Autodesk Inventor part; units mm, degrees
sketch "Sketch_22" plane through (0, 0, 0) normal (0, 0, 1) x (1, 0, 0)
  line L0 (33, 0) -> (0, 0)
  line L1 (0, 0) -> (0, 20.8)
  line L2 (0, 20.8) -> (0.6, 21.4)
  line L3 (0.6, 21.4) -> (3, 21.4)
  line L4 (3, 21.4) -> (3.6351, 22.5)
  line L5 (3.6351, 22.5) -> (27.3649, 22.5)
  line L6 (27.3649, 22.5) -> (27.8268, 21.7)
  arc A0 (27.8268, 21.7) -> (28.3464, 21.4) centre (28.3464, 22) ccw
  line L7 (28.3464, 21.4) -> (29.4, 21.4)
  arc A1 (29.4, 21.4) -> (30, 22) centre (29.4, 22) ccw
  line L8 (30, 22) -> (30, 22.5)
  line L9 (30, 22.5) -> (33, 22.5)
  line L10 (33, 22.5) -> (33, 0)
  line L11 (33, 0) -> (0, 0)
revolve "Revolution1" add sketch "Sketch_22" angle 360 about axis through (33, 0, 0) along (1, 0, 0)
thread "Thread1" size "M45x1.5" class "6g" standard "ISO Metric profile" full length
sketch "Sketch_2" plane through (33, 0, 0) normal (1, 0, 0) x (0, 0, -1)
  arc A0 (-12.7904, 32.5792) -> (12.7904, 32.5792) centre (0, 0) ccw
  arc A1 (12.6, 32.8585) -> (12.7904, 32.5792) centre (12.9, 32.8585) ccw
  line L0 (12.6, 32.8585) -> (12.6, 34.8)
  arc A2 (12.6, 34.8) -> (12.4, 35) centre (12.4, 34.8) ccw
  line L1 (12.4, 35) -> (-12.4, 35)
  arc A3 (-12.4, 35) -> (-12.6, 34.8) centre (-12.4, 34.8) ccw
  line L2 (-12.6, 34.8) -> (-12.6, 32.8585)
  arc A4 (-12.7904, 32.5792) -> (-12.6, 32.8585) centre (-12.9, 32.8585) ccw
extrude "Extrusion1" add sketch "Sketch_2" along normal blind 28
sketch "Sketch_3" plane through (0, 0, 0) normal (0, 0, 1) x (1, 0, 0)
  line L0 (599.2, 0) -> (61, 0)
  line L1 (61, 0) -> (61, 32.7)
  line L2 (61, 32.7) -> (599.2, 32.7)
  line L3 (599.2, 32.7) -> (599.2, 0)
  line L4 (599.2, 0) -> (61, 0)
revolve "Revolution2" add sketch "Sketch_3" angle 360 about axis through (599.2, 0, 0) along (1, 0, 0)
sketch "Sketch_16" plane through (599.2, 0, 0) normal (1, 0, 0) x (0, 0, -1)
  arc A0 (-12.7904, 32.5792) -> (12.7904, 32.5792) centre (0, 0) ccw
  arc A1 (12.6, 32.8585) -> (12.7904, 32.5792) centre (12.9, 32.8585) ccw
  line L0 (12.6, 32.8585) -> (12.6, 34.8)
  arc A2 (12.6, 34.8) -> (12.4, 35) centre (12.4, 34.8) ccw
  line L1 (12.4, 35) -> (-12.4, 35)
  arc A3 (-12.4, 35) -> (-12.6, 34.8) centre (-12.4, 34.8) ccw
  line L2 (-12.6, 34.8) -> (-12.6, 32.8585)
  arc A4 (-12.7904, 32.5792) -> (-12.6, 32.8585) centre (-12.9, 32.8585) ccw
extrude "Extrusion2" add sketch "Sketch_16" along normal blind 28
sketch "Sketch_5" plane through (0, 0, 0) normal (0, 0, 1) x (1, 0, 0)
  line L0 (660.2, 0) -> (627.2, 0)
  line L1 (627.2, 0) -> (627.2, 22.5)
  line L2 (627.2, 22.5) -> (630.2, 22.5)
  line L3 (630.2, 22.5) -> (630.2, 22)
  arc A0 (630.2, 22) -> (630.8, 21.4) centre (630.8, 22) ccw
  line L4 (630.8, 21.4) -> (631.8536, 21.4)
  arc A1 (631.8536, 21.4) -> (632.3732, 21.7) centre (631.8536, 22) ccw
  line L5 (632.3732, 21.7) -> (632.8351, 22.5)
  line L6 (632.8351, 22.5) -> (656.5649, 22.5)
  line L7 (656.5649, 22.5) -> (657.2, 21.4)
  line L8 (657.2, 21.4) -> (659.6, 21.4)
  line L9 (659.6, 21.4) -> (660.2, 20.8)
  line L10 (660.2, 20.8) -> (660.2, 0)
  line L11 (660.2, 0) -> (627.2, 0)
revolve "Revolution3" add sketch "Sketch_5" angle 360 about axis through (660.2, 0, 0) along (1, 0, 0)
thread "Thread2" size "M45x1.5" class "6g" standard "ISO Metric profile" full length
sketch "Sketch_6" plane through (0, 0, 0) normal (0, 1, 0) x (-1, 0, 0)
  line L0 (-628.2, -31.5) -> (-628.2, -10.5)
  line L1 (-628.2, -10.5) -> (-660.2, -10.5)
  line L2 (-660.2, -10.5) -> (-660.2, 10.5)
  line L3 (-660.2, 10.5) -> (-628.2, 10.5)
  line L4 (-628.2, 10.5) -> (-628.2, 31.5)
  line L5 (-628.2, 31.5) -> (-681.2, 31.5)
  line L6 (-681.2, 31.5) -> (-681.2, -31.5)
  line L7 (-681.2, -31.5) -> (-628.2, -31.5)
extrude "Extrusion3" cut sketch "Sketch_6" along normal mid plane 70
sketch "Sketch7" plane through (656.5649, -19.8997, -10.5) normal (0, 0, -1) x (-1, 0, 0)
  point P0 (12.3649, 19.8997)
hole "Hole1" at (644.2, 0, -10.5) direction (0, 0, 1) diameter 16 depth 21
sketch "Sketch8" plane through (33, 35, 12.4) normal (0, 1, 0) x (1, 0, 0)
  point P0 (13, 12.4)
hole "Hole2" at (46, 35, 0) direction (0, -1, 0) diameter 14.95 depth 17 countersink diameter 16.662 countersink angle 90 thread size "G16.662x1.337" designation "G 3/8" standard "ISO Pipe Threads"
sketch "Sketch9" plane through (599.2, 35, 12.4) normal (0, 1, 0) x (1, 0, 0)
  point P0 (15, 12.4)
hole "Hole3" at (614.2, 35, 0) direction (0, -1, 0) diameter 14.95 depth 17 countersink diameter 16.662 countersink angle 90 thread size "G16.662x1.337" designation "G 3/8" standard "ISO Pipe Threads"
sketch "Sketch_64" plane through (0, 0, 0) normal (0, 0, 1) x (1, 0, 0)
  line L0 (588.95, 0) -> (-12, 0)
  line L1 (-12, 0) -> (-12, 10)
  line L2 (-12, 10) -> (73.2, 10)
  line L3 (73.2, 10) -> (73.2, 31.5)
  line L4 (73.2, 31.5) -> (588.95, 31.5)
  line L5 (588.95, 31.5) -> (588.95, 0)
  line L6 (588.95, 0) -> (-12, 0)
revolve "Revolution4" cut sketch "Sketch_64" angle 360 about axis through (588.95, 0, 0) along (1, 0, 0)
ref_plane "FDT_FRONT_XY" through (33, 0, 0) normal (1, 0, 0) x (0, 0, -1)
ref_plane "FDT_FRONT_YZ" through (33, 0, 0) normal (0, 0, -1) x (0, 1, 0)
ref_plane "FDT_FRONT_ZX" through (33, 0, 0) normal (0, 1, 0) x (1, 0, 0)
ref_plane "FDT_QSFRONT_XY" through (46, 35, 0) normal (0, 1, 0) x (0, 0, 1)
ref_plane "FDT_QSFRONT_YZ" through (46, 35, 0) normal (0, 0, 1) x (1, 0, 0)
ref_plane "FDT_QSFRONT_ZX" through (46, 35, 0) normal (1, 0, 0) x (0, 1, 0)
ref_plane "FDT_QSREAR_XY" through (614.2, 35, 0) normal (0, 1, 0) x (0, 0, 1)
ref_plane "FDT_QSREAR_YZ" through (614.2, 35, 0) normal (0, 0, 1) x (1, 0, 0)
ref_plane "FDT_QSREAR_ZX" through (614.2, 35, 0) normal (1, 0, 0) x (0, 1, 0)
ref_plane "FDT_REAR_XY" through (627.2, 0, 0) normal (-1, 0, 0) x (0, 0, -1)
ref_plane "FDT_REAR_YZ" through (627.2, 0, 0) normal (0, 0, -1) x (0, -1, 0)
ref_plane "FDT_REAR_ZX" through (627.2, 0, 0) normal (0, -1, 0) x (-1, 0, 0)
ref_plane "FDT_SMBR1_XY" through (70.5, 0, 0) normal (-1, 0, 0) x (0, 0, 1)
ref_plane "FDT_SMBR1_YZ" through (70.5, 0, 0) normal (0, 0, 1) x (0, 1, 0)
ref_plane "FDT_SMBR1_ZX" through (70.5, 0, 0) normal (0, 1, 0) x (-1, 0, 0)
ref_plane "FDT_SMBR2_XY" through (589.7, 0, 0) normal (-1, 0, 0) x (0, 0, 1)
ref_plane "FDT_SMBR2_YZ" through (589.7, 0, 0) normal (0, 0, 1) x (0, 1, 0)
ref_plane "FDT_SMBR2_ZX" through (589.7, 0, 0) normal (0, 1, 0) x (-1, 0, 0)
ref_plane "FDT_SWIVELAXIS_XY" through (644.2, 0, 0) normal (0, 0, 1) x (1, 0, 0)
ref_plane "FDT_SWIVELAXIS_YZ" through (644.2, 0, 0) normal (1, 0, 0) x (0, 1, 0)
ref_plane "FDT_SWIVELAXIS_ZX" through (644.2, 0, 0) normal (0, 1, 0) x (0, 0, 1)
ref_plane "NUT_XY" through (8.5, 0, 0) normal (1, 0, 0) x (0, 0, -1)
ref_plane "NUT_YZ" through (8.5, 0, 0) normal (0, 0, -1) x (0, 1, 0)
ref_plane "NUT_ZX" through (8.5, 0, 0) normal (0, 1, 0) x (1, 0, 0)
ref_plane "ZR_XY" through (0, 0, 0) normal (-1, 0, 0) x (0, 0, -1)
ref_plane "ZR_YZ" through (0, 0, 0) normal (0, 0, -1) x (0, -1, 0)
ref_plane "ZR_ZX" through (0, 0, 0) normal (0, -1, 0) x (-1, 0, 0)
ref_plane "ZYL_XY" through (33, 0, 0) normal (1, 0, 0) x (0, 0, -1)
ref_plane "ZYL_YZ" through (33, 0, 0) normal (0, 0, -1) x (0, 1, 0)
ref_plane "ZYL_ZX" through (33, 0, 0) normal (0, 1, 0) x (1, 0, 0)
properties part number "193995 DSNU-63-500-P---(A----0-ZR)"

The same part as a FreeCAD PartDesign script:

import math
import FreeCAD as App
import Part
import Sketcher
Q = App.Units.Quantity


def add_polygon(sketch, points):
    """Adds a closed chain of lines whose ends are joined by coincident constraints."""
    first, n = sketch.GeometryCount, len(points)
    for a, b in zip(points, points[1:] + points[:1]):
        sketch.addGeometry(Part.LineSegment(App.Vector(*a, 0), App.Vector(*b, 0)), False)
    for i in range(n):
        sketch.addConstraint(Sketcher.Constraint("Coincident", first + i, 2, first + (i + 1) % n, 1))

doc = App.newDocument("Part")
body = doc.addObject("PartDesign::Body", "Body")

sketch1 = body.newObject("Sketcher::SketchObject", "Sketch")
sketch1.AttachmentSupport = (doc.getObject("XY_Plane"), [""])
sketch1.MapMode = "FlatFace"
sketch1.addGeometry([
    Part.LineSegment(App.Vector(0, 0, 0), App.Vector(33, 0, 0)),
    Part.LineSegment(App.Vector(33, 0, 0), App.Vector(33, 22.5, 0)),
    Part.LineSegment(App.Vector(33, 22.5, 0), App.Vector(30, 22.5, 0)),
    Part.LineSegment(App.Vector(30, 22.5, 0), App.Vector(30, 22, 0)),
    Part.ArcOfCircle(Part.Circle(App.Vector(29.4, 22, 0), App.Vector(0, 0, 1), 0.6), math.radians(-90), math.radians(0)),
    Part.LineSegment(App.Vector(29.4, 21.4, 0), App.Vector(28.3464, 21.4, 0)),
    Part.ArcOfCircle(Part.Circle(App.Vector(28.3464, 22, 0), App.Vector(0, 0, 1), 0.599987), math.radians(-149.999272), math.radians(-90)),
    Part.LineSegment(App.Vector(27.8268, 21.7, 0), App.Vector(27.3649, 22.5, 0)),
    Part.LineSegment(App.Vector(27.3649, 22.5, 0), App.Vector(3.6351, 22.5, 0)),
    Part.LineSegment(App.Vector(3.6351, 22.5, 0), App.Vector(3, 21.4, 0)),
    Part.LineSegment(App.Vector(3, 21.4, 0), App.Vector(0.6, 21.4, 0)),
    Part.LineSegment(App.Vector(0.6, 21.4, 0), App.Vector(0, 20.8, 0)),
    Part.LineSegment(App.Vector(0, 20.8, 0), App.Vector(0, 0, 0)),
], False)
sketch1.addConstraint([
    Sketcher.Constraint("Coincident", 0, 2, 1, 1),
    Sketcher.Constraint("Coincident", 1, 2, 2, 1),
    Sketcher.Constraint("Coincident", 2, 2, 3, 1),
    Sketcher.Constraint("Tangent", 3, 2, 4, 2),
    Sketcher.Constraint("Tangent", 4, 1, 5, 1),
    Sketcher.Constraint("Tangent", 5, 2, 6, 2),
    Sketcher.Constraint("Tangent", 6, 1, 7, 1),
    Sketcher.Constraint("Coincident", 7, 2, 8, 1),
    Sketcher.Constraint("Coincident", 8, 2, 9, 1),
    Sketcher.Constraint("Coincident", 9, 2, 10, 1),
    Sketcher.Constraint("Coincident", 10, 2, 11, 1),
    Sketcher.Constraint("Coincident", 11, 2, 12, 1),
    Sketcher.Constraint("Coincident", 12, 2, 0, 1),
    Sketcher.Constraint("Horizontal", 0),
    Sketcher.Constraint("Vertical", 1),
    Sketcher.Constraint("Horizontal", 2),
    Sketcher.Constraint("Vertical", 3),
    Sketcher.Constraint("Horizontal", 5),
    Sketcher.Constraint("Horizontal", 8),
    Sketcher.Constraint("Horizontal", 10),
    Sketcher.Constraint("Vertical", 12),
    Sketcher.Constraint("Coincident", 12, 2, -1, 1),
    Sketcher.Constraint("Equal", 4, 6),
    Sketcher.Constraint("Horizontal", 2, 2, 7, 2),
    Sketcher.Constraint("Horizontal", 5, 2, 9, 2),
    Sketcher.Constraint("Radius", 4, Q("0.6 mm")),
    Sketcher.Constraint("DistanceX", 0, 1, 0, 2, Q("33 mm")),
    Sketcher.Constraint("DistanceX", 2, 2, 2, 1, Q("3 mm")),
    Sketcher.Constraint("Angle", 7, Q("120.001 deg")),
    Sketcher.Constraint("Angle", 9, Q("-120.0006 deg")),
    Sketcher.Constraint("Angle", 11, Q("-135 deg")),
    Sketcher.Constraint("DistanceX", 10, 2, 10, 1, Q("2.4 mm")),
    Sketcher.Constraint("DistanceY", 1, 1, 1, 2, Q("22.5 mm")),
    Sketcher.Constraint("DistanceY", 3, 2, 3, 1, Q("0.5 mm")),
    Sketcher.Constraint("DistanceY", 12, 2, 12, 1, Q("20.8 mm")),
    Sketcher.Constraint("DistanceX", 5, 2, 5, 1, Q("1.0536 mm")),
])
revolution = body.newObject("PartDesign::Revolution", "Revolution")
revolution.Profile = sketch1
revolution.ReferenceAxis = (sketch1, ["H_Axis"])
revolution.Angle = 360

sketch2 = body.newObject("Sketcher::SketchObject", "Sketch001")
sketch2.AttachmentSupport = (doc.getObject("YZ_Plane"), [""])
sketch2.MapMode = "FlatFace"
sketch2.AttachmentOffset = App.Placement(App.Vector(0, 0, 33), App.Rotation())
sketch2.addGeometry([
    Part.ArcOfCircle(Part.Circle(App.Vector(32.8585, 12.9, 0), App.Vector(0, 0, 1), 0.300034), math.radians(-158.574481), math.radians(-90)),
    Part.ArcOfCircle(Part.Circle(App.Vector(0, 0, 0), App.Vector(0, 0, 1), 34.99998), math.radians(21.434676), math.radians(338.565324)),
    Part.ArcOfCircle(Part.Circle(App.Vector(32.8585, -12.9, 0), App.Vector(0, 0, 1), 0.3), math.radians(90), math.radians(158.574481)),
    Part.LineSegment(App.Vector(32.8585, -12.6, 0), App.Vector(34.8, -12.6, 0)),
    Part.ArcOfCircle(Part.Circle(App.Vector(34.8, -12.4, 0), App.Vector(0, 0, 1), 0.2), math.radians(-90), math.radians(0)),
    Part.LineSegment(App.Vector(35, -12.4, 0), App.Vector(35, 12.4, 0)),
    Part.ArcOfCircle(Part.Circle(App.Vector(34.8, 12.4, 0), App.Vector(0, 0, 1), 0.2), math.radians(0), math.radians(90)),
    Part.LineSegment(App.Vector(34.8, 12.6, 0), App.Vector(32.8585, 12.6, 0)),
], False)
sketch2.addConstraint([
    Sketcher.Constraint("Tangent", 0, 1, 1, 1),
    Sketcher.Constraint("Tangent", 1, 2, 2, 2),
    Sketcher.Constraint("Tangent", 2, 1, 3, 1),
    Sketcher.Constraint("Tangent", 3, 2, 4, 1),
    Sketcher.Constraint("Tangent", 4, 2, 5, 1),
    Sketcher.Constraint("Tangent", 5, 2, 6, 1),
    Sketcher.Constraint("Tangent", 6, 2, 7, 1),
    Sketcher.Constraint("Tangent", 7, 2, 0, 2),
    Sketcher.Constraint("Horizontal", 3),
    Sketcher.Constraint("Vertical", 5),
    Sketcher.Constraint("Horizontal", 7),
    Sketcher.Constraint("Coincident", 1, 3, -1, 1),
    Sketcher.Constraint("Equal", 0, 2),
    Sketcher.Constraint("Equal", 4, 6),
    Sketcher.Constraint("Vertical", 0, 3, 2, 3),
    Sketcher.Constraint("Radius", 1, Q("35 mm")),
    Sketcher.Constraint("Radius", 0, Q("0.3 mm")),
    Sketcher.Constraint("Radius", 4, Q("0.2 mm")),
    Sketcher.Constraint("DistanceY", 5, 1, 5, 2, Q("24.8 mm")),
    Sketcher.Constraint("DistanceX", -1, 1, 4, 2, Q("35 mm")),
])
pad1 = body.newObject("PartDesign::Pad", "Pad")
pad1.Profile = sketch2
pad1.Length = 28

sketch3 = body.newObject("Sketcher::SketchObject", "Sketch002")
sketch3.AttachmentSupport = (doc.getObject("XY_Plane"), [""])
sketch3.MapMode = "FlatFace"
add_polygon(sketch3, [(61, 0), (599.2, 0), (599.2, 32.7), (61, 32.7)])
sketch3.addConstraint([
    Sketcher.Constraint("Horizontal", 0),
    Sketcher.Constraint("Vertical", 1),
    Sketcher.Constraint("Horizontal", 2),
    Sketcher.Constraint("Vertical", 3),
    Sketcher.Constraint("PointOnObject", 0, 2, -1),
    Sketcher.Constraint("DistanceX", 0, 1, 0, 2, Q("538.2 mm")),
    Sketcher.Constraint("DistanceY", 1, 1, 1, 2, Q("32.7 mm")),
    Sketcher.Constraint("DistanceX", -1, 1, 2, 2, Q("61 mm")),
])
revolution2 = body.newObject("PartDesign::Revolution", "Revolution001")
revolution2.Profile = sketch3
revolution2.ReferenceAxis = (sketch3, ["H_Axis"])
revolution2.Angle = 360

sketch4 = body.newObject("Sketcher::SketchObject", "Sketch003")
sketch4.AttachmentSupport = (doc.getObject("YZ_Plane"), [""])
sketch4.MapMode = "FlatFace"
sketch4.AttachmentOffset = App.Placement(App.Vector(0, 0, 599.2), App.Rotation())
sketch4.addGeometry([
    Part.ArcOfCircle(Part.Circle(App.Vector(32.8585, 12.9, 0), App.Vector(0, 0, 1), 0.300034), math.radians(-158.574481), math.radians(-90)),
    Part.ArcOfCircle(Part.Circle(App.Vector(0, 0, 0), App.Vector(0, 0, 1), 34.99998), math.radians(21.434676), math.radians(338.565324)),
    Part.ArcOfCircle(Part.Circle(App.Vector(32.8585, -12.9, 0), App.Vector(0, 0, 1), 0.3), math.radians(90), math.radians(158.574481)),
    Part.LineSegment(App.Vector(32.8585, -12.6, 0), App.Vector(34.8, -12.6, 0)),
    Part.ArcOfCircle(Part.Circle(App.Vector(34.8, -12.4, 0), App.Vector(0, 0, 1), 0.2), math.radians(-90), math.radians(0)),
    Part.LineSegment(App.Vector(35, -12.4, 0), App.Vector(35, 12.4, 0)),
    Part.ArcOfCircle(Part.Circle(App.Vector(34.8, 12.4, 0), App.Vector(0, 0, 1), 0.2), math.radians(0), math.radians(90)),
    Part.LineSegment(App.Vector(34.8, 12.6, 0), App.Vector(32.8585, 12.6, 0)),
], False)
sketch4.addConstraint([
    Sketcher.Constraint("Tangent", 0, 1, 1, 1),
    Sketcher.Constraint("Tangent", 1, 2, 2, 2),
    Sketcher.Constraint("Tangent", 2, 1, 3, 1),
    Sketcher.Constraint("Tangent", 3, 2, 4, 1),
    Sketcher.Constraint("Tangent", 4, 2, 5, 1),
    Sketcher.Constraint("Tangent", 5, 2, 6, 1),
    Sketcher.Constraint("Tangent", 6, 2, 7, 1),
    Sketcher.Constraint("Tangent", 7, 2, 0, 2),
    Sketcher.Constraint("Horizontal", 3),
    Sketcher.Constraint("Vertical", 5),
    Sketcher.Constraint("Horizontal", 7),
    Sketcher.Constraint("Coincident", 1, 3, -1, 1),
    Sketcher.Constraint("Equal", 0, 2),
    Sketcher.Constraint("Equal", 4, 6),
    Sketcher.Constraint("Vertical", 0, 3, 2, 3),
    Sketcher.Constraint("Radius", 1, Q("35 mm")),
    Sketcher.Constraint("Radius", 0, Q("0.3 mm")),
    Sketcher.Constraint("Radius", 4, Q("0.2 mm")),
    Sketcher.Constraint("DistanceY", 5, 1, 5, 2, Q("24.8 mm")),
    Sketcher.Constraint("DistanceX", -1, 1, 4, 2, Q("35 mm")),
])
pad2 = body.newObject("PartDesign::Pad", "Pad001")
pad2.Profile = sketch4
pad2.Length = 28

sketch5 = body.newObject("Sketcher::SketchObject", "Sketch004")
sketch5.AttachmentSupport = (doc.getObject("XY_Plane"), [""])
sketch5.MapMode = "FlatFace"
sketch5.addGeometry([
    Part.LineSegment(App.Vector(627.2, 0, 0), App.Vector(660.2, 0, 0)),
    Part.LineSegment(App.Vector(660.2, 0, 0), App.Vector(660.2, 20.8, 0)),
    Part.LineSegment(App.Vector(660.2, 20.8, 0), App.Vector(659.6, 21.4, 0)),
    Part.LineSegment(App.Vector(659.6, 21.4, 0), App.Vector(657.2, 21.4, 0)),
    Part.LineSegment(App.Vector(657.2, 21.4, 0), App.Vector(656.5649, 22.5, 0)),
    Part.LineSegment(App.Vector(656.5649, 22.5, 0), App.Vector(632.8351, 22.5, 0)),
    Part.LineSegment(App.Vector(632.8351, 22.5, 0), App.Vector(632.3732, 21.7, 0)),
    Part.ArcOfCircle(Part.Circle(App.Vector(631.8536, 22, 0), App.Vector(0, 0, 1), 0.6), math.radians(-90), math.radians(-30.000728)),
    Part.LineSegment(App.Vector(631.8536, 21.4, 0), App.Vector(630.8, 21.4, 0)),
    Part.ArcOfCircle(Part.Circle(App.Vector(630.8, 22, 0), App.Vector(0, 0, 1), 0.6), math.radians(180), math.radians(270)),
    Part.LineSegment(App.Vector(630.2, 22, 0), App.Vector(630.2, 22.5, 0)),
    Part.LineSegment(App.Vector(630.2, 22.5, 0), App.Vector(627.2, 22.5, 0)),
    Part.LineSegment(App.Vector(627.2, 22.5, 0), App.Vector(627.2, 0, 0)),
], False)
sketch5.addConstraint([
    Sketcher.Constraint("Coincident", 0, 2, 1, 1),
    Sketcher.Constraint("Coincident", 1, 2, 2, 1),
    Sketcher.Constraint("Coincident", 2, 2, 3, 1),
    Sketcher.Constraint("Coincident", 3, 2, 4, 1),
    Sketcher.Constraint("Coincident", 4, 2, 5, 1),
    Sketcher.Constraint("Coincident", 5, 2, 6, 1),
    Sketcher.Constraint("Tangent", 6, 2, 7, 2),
    Sketcher.Constraint("Tangent", 7, 1, 8, 1),
    Sketcher.Constraint("Tangent", 8, 2, 9, 2),
    Sketcher.Constraint("Tangent", 9, 1, 10, 1),
    Sketcher.Constraint("Coincident", 10, 2, 11, 1),
    Sketcher.Constraint("Coincident", 11, 2, 12, 1),
    Sketcher.Constraint("Coincident", 12, 2, 0, 1),
    Sketcher.Constraint("Horizontal", 0),
    Sketcher.Constraint("Vertical", 1),
    Sketcher.Constraint("Horizontal", 3),
    Sketcher.Constraint("Horizontal", 5),
    Sketcher.Constraint("Horizontal", 8),
    Sketcher.Constraint("Vertical", 10),
    Sketcher.Constraint("Horizontal", 11),
    Sketcher.Constraint("Vertical", 12),
    Sketcher.Constraint("Equal", 7, 9),
    Sketcher.Constraint("PointOnObject", 0, 2, -1),
    Sketcher.Constraint("Horizontal", 3, 2, 7, 1),
    Sketcher.Constraint("Horizontal", 5, 2, 10, 2),
    Sketcher.Constraint("Radius", 7, Q("0.6 mm")),
    Sketcher.Constraint("DistanceX", 0, 1, 0, 2, Q("33 mm")),
    Sketcher.Constraint("DistanceX", 11, 2, 11, 1, Q("3 mm")),
    Sketcher.Constraint("Angle", 2, Q("135 deg")),
    Sketcher.Constraint("Angle", 4, Q("120.0006 deg")),
    Sketcher.Constraint("Angle", 6, Q("-120.001 deg")),
    Sketcher.Constraint("DistanceX", 3, 2, 3, 1, Q("2.4 mm")),
    Sketcher.Constraint("DistanceY", 1, 1, 1, 2, Q("20.8 mm")),
    Sketcher.Constraint("DistanceY", 10, 1, 10, 2, Q("0.5 mm")),
    Sketcher.Constraint("DistanceY", 12, 2, 12, 1, Q("22.5 mm")),
    Sketcher.Constraint("DistanceX", -1, 1, 9, 3, Q("630.8 mm")),
    Sketcher.Constraint("DistanceX", 5, 2, 5, 1, Q("23.7298 mm")),
])
revolution3 = body.newObject("PartDesign::Revolution", "Revolution002")
revolution3.Profile = sketch5
revolution3.ReferenceAxis = (sketch5, ["H_Axis"])
revolution3.Angle = 360

sketch6 = body.newObject("Sketcher::SketchObject", "Sketch005")
sketch6.AttachmentSupport = (doc.getObject("XZ_Plane"), [""])
sketch6.MapMode = "FlatFace"
add_polygon(sketch6, [(681.2, -31.5), (628.2, -31.5), (628.2, -10.5), (660.2, -10.5), (660.2, 10.5), (628.2, 10.5), (628.2, 31.5), (681.2, 31.5)])
sketch6.addConstraint([
    Sketcher.Constraint("Horizontal", 0),
    Sketcher.Constraint("Vertical", 1),
    Sketcher.Constraint("Horizontal", 2),
    Sketcher.Constraint("Vertical", 3),
    Sketcher.Constraint("Horizontal", 4),
    Sketcher.Constraint("Vertical", 5),
    Sketcher.Constraint("Horizontal", 6),
    Sketcher.Constraint("Vertical", 7),
    Sketcher.Constraint("Symmetric", 1, 2, 4, 2, -1),
    Sketcher.Constraint("Equal", 1, 3),
    Sketcher.Constraint("Equal", 3, 5),
    Sketcher.Constraint("DistanceX", 0, 2, 0, 1, Q("53 mm")),
    Sketcher.Constraint("DistanceX", 2, 1, 2, 2, Q("32 mm")),
    Sketcher.Constraint("DistanceY", 1, 1, 1, 2, Q("21 mm")),
    Sketcher.Constraint("DistanceX", -1, 1, 0, 2, Q("628.2 mm")),
])
pocket1 = body.newObject("PartDesign::Pocket", "Pocket")
pocket1.Profile = sketch6
pocket1.Length = 70
pocket1.Midplane = True

sketch7 = body.newObject("Sketcher::SketchObject", "Sketch006")
sketch7.AttachmentSupport = (doc.getObject("XY_Plane"), [""])
sketch7.MapMode = "FlatFace"
sketch7.AttachmentOffset = App.Placement(App.Vector(0, 0, -10.5), App.Rotation())
sketch7.addGeometry(Part.Circle(App.Vector(644.2, 0, 0), App.Vector(0, 0, 1), 8), False)
sketch7.addConstraint([
    Sketcher.Constraint("PointOnObject", 0, 3, -1),
    Sketcher.Constraint("Diameter", 0, Q("16 mm")),
    Sketcher.Constraint("DistanceX", -1, 1, 0, 3, Q("644.2 mm")),
])
doc.recompute()
hole = body.newObject("PartDesign::Hole", "Hole")
hole.Profile = sketch7
hole.ThreadType = "None"
hole.Diameter = 16
hole.DepthType = "Dimension"
hole.Depth = 21
hole.DrillPoint = "Flat"
hole.Reversed = True

sketch8 = body.newObject("Sketcher::SketchObject", "Sketch007")
sketch8.AttachmentSupport = (doc.getObject("XZ_Plane"), [""])
sketch8.MapMode = "FlatFace"
sketch8.AttachmentOffset = App.Placement(App.Vector(0, 0, -35), App.Rotation())
sketch8.addGeometry(Part.Circle(App.Vector(46, 0, 0), App.Vector(0, 0, 1), 7.475), False)
sketch8.addConstraint([
    Sketcher.Constraint("PointOnObject", 0, 3, -1),
    Sketcher.Constraint("Diameter", 0, Q("14.95 mm")),
    Sketcher.Constraint("DistanceX", -1, 1, 0, 3, Q("46 mm")),
])
doc.recompute()
hole2 = body.newObject("PartDesign::Hole", "Hole001")
hole2.Profile = sketch8
hole2.ThreadType = "None"
hole2.Diameter = 14.95
hole2.DepthType = "Dimension"
hole2.Depth = 17
hole2.DrillPoint = "Flat"
hole2.HoleCutType = "Countersink"
hole2.HoleCutDiameter = 16.662
hole2.HoleCutCountersinkAngle = 90
hole2.Reversed = True

sketch9 = body.newObject("Sketcher::SketchObject", "Sketch008")
sketch9.AttachmentSupport = (doc.getObject("XZ_Plane"), [""])
sketch9.MapMode = "FlatFace"
sketch9.AttachmentOffset = App.Placement(App.Vector(0, 0, -35), App.Rotation())
sketch9.addGeometry(Part.Circle(App.Vector(614.2, 0, 0), App.Vector(0, 0, 1), 7.475), False)
sketch9.addConstraint([
    Sketcher.Constraint("PointOnObject", 0, 3, -1),
    Sketcher.Constraint("Diameter", 0, Q("14.95 mm")),
    Sketcher.Constraint("DistanceX", -1, 1, 0, 3, Q("614.2 mm")),
])
doc.recompute()
hole3 = body.newObject("PartDesign::Hole", "Hole002")
hole3.Profile = sketch9
hole3.ThreadType = "None"
hole3.Diameter = 14.95
hole3.DepthType = "Dimension"
hole3.Depth = 17
hole3.DrillPoint = "Flat"
hole3.HoleCutType = "Countersink"
hole3.HoleCutDiameter = 16.662
hole3.HoleCutCountersinkAngle = 90
hole3.Reversed = True

sketch10 = body.newObject("Sketcher::SketchObject", "Sketch009")
sketch10.AttachmentSupport = (doc.getObject("XY_Plane"), [""])
sketch10.MapMode = "FlatFace"
add_polygon(sketch10, [(-12, 0), (588.95, 0), (588.95, 31.5), (73.2, 31.5), (73.2, 10), (-12, 10)])
sketch10.addConstraint([
    Sketcher.Constraint("Horizontal", 0),
    Sketcher.Constraint("Vertical", 1),
    Sketcher.Constraint("Horizontal", 2),
    Sketcher.Constraint("Vertical", 3),
    Sketcher.Constraint("Horizontal", 4),
    Sketcher.Constraint("Vertical", 5),
    Sketcher.Constraint("PointOnObject", 0, 2, -1),
    Sketcher.Constraint("DistanceY", 5, 2, 5, 1, Q("10 mm")),
    Sketcher.Constraint("DistanceX", 4, 2, 4, 1, Q("85.2 mm")),
    Sketcher.Constraint("DistanceY", 1, 1, 1, 2, Q("31.5 mm")),
    Sketcher.Constraint("DistanceX", 4, 2, -1, 1, Q("12 mm")),
    Sketcher.Constraint("DistanceX", 0, 1, 0, 2, Q("600.95 mm")),
])
groove = body.newObject("PartDesign::Groove", "Groove")
groove.Profile = sketch10
groove.ReferenceAxis = (sketch10, ["H_Axis"])
groove.Angle = 360

doc.recompute()
